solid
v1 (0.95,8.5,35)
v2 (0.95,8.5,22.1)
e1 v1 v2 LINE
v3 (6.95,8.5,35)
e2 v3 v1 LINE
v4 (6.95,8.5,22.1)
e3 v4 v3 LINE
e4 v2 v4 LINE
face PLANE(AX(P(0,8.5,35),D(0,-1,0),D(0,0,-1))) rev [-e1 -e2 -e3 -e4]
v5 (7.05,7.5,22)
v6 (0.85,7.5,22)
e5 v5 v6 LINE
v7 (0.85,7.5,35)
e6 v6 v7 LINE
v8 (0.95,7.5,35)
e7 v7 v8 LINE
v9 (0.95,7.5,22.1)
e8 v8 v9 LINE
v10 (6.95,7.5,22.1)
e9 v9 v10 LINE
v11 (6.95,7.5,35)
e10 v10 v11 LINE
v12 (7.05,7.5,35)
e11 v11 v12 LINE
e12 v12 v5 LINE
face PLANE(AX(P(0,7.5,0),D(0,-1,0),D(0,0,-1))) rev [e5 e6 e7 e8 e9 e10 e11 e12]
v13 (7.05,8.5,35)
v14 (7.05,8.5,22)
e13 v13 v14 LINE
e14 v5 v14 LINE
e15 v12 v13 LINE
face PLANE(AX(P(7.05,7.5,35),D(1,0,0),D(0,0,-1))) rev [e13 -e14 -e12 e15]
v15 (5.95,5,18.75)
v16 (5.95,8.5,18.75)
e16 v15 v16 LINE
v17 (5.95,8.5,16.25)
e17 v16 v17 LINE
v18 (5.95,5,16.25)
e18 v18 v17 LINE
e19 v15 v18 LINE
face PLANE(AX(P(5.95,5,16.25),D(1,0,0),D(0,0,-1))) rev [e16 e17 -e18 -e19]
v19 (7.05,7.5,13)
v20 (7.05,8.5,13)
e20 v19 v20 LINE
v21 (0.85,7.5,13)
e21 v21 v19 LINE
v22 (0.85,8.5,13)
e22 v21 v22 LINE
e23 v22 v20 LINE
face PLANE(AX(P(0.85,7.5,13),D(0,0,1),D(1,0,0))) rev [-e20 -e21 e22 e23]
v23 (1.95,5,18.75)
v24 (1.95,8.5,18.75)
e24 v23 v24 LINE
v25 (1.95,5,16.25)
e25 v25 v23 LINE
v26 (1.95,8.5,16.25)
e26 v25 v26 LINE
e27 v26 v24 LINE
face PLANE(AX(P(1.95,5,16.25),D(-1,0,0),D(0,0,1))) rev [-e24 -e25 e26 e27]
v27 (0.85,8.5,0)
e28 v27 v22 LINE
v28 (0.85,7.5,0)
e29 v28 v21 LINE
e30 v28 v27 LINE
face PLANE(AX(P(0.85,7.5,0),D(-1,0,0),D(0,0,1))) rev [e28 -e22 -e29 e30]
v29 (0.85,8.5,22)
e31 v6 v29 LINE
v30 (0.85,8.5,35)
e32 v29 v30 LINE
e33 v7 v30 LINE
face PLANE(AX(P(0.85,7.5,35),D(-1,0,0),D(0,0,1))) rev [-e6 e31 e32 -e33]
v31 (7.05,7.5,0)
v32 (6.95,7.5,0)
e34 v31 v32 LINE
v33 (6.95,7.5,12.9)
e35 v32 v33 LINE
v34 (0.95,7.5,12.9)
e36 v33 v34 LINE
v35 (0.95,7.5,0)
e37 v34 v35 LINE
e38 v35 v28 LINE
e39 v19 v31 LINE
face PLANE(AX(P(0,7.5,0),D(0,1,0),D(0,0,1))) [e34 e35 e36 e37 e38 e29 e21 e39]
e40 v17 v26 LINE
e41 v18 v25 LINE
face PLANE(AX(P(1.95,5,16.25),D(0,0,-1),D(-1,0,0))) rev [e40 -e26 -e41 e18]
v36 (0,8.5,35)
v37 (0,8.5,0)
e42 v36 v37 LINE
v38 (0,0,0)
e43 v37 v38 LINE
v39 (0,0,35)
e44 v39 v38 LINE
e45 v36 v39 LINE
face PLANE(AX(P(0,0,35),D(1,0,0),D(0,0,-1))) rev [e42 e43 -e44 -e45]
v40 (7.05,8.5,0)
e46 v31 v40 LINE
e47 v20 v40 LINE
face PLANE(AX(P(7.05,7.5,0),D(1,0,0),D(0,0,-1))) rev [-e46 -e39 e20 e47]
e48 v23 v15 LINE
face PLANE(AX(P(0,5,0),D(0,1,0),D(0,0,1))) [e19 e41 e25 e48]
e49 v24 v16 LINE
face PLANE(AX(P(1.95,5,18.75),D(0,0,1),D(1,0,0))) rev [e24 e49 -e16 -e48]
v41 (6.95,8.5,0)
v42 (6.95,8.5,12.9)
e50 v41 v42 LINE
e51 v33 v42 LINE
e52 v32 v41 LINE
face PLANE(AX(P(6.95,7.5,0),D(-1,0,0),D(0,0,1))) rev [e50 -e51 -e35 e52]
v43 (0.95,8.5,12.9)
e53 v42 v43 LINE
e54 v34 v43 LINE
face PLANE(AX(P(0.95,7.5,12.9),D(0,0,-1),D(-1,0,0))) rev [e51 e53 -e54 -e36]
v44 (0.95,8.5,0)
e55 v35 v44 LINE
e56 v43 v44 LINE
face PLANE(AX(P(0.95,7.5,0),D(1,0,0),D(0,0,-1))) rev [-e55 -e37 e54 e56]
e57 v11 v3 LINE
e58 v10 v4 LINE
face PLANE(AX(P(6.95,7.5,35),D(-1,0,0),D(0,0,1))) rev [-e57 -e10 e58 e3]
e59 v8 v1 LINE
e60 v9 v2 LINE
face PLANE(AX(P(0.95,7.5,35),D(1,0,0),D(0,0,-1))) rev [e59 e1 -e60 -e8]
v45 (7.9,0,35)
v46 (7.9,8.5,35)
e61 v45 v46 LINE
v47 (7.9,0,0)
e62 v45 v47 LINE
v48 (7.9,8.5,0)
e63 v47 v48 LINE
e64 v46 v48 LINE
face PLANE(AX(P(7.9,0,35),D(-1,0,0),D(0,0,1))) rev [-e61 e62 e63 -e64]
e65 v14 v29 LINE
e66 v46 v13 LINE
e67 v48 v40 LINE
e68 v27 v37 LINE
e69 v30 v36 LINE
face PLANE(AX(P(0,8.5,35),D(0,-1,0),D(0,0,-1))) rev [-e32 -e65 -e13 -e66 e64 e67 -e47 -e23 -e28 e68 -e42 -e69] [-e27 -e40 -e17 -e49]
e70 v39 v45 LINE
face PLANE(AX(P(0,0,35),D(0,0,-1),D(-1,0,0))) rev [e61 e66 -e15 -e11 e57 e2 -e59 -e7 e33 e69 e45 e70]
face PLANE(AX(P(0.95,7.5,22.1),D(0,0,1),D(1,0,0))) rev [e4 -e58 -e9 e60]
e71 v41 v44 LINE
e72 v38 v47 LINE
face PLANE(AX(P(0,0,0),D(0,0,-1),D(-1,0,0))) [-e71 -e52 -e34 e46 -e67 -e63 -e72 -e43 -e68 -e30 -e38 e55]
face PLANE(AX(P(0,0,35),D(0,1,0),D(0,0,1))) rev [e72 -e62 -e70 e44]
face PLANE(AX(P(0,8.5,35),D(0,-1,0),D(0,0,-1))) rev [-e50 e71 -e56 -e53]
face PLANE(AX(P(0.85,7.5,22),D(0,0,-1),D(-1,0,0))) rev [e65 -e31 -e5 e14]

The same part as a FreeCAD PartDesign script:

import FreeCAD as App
import Part
import Sketcher

V = App.Vector


def add_polygon(sketch, points):
    """Adds a closed chain of lines whose ends are joined by coincident constraints."""
    first, n = sketch.GeometryCount, len(points)
    for a, b in zip(points, points[1:] + points[:1]):
        sketch.addGeometry(Part.LineSegment(App.Vector(*a, 0), App.Vector(*b, 0)), False)
    for i in range(n):
        sketch.addConstraint(Sketcher.Constraint("Coincident", first + i, 2, first + (i + 1) % n, 1))

doc = App.newDocument("Part")
body = doc.addObject("PartDesign::Body", "Body")

# Sketch on XY plane
sketch1 = body.newObject("Sketcher::SketchObject", "Sketch")
sketch1.AttachmentSupport = (doc.getObject("XY_Plane"), [""])
sketch1.MapMode = "FlatFace"
add_polygon(sketch1, [(0, 8), (0, 0), (8, 0), (8, 8)])  # lines 0-3
sketch1.addConstraint([
    Sketcher.Constraint("Vertical", 0),
    Sketcher.Constraint("Horizontal", 1),
    Sketcher.Constraint("Vertical", 2),
    Sketcher.Constraint("Horizontal", 3),
    Sketcher.Constraint("Coincident", 0, 2, -1, 1),
    Sketcher.Constraint("DistanceX", 1, 1, 1, 2, 7.9),
    Sketcher.Constraint("DistanceY", 0, 2, 0, 1, 8.5),
])
pad1 = body.newObject("PartDesign::Pad", "Pad")
pad1.Profile = sketch1
pad1.Length = 35

# Sketch on XZ plane
sketch2 = body.newObject("Sketcher::SketchObject", "Sketch001")
sketch2.AttachmentSupport = (doc.getObject("XZ_Plane"), [""])
sketch2.MapMode = "FlatFace"
sketch2.AttachmentOffset = App.Placement(V(0, 0, -8.5), App.Rotation())
add_polygon(sketch2, [(0.85, 35), (0.95, 35), (0.95, 22.1), (6.95, 22.1), (6.95, 35), (7.05, 35), (7.05, 22), (0.85, 22)])  # lines 0-7
add_polygon(sketch2, [(7.05, 0), (6.95, 0), (6.95, 12.9), (0.95, 12.9), (0.95, 0), (0.85, 0), (0.85, 13), (7.05, 13)])  # lines 8-15
sketch2.addConstraint([
    Sketcher.Constraint("Horizontal", 0),
    Sketcher.Constraint("Vertical", 1),
    Sketcher.Constraint("Horizontal", 2),
    Sketcher.Constraint("Vertical", 3),
    Sketcher.Constraint("Horizontal", 4),
    Sketcher.Constraint("Vertical", 5),
    Sketcher.Constraint("Horizontal", 6),
    Sketcher.Constraint("Vertical", 7),
    Sketcher.Constraint("Horizontal", 8),
    Sketcher.Constraint("Vertical", 9),
    Sketcher.Constraint("Horizontal", 10),
    Sketcher.Constraint("Vertical", 11),
    Sketcher.Constraint("Horizontal", 12),
    Sketcher.Constraint("Vertical", 13),
    Sketcher.Constraint("Horizontal", 14),
    Sketcher.Constraint("Vertical", 15),
    Sketcher.Constraint("PointOnObject", 8, 2, -1),
    Sketcher.Constraint("PointOnObject", 11, 2, -1),
    Sketcher.Constraint("Horizontal", 0, 2, 3, 2),
    Sketcher.Constraint("Vertical", 3, 2, 8, 2),
    Sketcher.Constraint("Vertical", 1, 2, 10, 2),
    Sketcher.Constraint("Vertical", 7, 2, 12, 2),
    Sketcher.Constraint("Vertical", 5, 2, 14, 2),
    Sketcher.Constraint("Equal", 0, 4),
    Sketcher.Constraint("Equal", 3, 9),
    Sketcher.Constraint("Equal", 7, 13),
    Sketcher.Constraint("DistanceX", 2, 1, 2, 2, 6.0),
    Sketcher.Constraint("DistanceY", 5, 2, 5, 1, 13.0),
    Sketcher.Constraint("DistanceX", 0, 1, 0, 2, 0.1),
    Sketcher.Constraint("DistanceY", 1, 2, 1, 1, 12.9),
    Sketcher.Constraint("DistanceY", -1, 1, 0, 2, 35.0),
    Sketcher.Constraint("DistanceX", -1, 1, 0, 2, 0.95),
])
pocket1 = body.newObject("PartDesign::Pocket", "Pocket")
pocket1.Profile = sketch2
pocket1.Length = 1
pocket1.Reversed = True

# Sketch on XZ plane
sketch3 = body.newObject("Sketcher::SketchObject", "Sketch002")
sketch3.AttachmentSupport = (doc.getObject("XZ_Plane"), [""])
sketch3.MapMode = "FlatFace"
sketch3.AttachmentOffset = App.Placement(V(0, 0, -8.5), App.Rotation())
add_polygon(sketch3, [(1.9, 16.2), (1.9, 18.8), (6, 18.8), (6, 16.2)])  # lines 0-3
sketch3.addConstraint([
    Sketcher.Constraint("Vertical", 0),
    Sketcher.Constraint("Horizontal", 1),
    Sketcher.Constraint("Vertical", 2),
    Sketcher.Constraint("Horizontal", 3),
    Sketcher.Constraint("DistanceX", 1, 1, 1, 2, 4.0),
    Sketcher.Constraint("DistanceY", 0, 1, 0, 2, 2.5),
    Sketcher.Constraint("DistanceX", -1, 1, 0, 2, 1.95),
    Sketcher.Constraint("DistanceY", -1, 1, 0, 2, 18.75),
])
pocket2 = body.newObject("PartDesign::Pocket", "Pocket001")
pocket2.Profile = sketch3
pocket2.Length = 3.5
pocket2.Reversed = True

doc.recompute()
